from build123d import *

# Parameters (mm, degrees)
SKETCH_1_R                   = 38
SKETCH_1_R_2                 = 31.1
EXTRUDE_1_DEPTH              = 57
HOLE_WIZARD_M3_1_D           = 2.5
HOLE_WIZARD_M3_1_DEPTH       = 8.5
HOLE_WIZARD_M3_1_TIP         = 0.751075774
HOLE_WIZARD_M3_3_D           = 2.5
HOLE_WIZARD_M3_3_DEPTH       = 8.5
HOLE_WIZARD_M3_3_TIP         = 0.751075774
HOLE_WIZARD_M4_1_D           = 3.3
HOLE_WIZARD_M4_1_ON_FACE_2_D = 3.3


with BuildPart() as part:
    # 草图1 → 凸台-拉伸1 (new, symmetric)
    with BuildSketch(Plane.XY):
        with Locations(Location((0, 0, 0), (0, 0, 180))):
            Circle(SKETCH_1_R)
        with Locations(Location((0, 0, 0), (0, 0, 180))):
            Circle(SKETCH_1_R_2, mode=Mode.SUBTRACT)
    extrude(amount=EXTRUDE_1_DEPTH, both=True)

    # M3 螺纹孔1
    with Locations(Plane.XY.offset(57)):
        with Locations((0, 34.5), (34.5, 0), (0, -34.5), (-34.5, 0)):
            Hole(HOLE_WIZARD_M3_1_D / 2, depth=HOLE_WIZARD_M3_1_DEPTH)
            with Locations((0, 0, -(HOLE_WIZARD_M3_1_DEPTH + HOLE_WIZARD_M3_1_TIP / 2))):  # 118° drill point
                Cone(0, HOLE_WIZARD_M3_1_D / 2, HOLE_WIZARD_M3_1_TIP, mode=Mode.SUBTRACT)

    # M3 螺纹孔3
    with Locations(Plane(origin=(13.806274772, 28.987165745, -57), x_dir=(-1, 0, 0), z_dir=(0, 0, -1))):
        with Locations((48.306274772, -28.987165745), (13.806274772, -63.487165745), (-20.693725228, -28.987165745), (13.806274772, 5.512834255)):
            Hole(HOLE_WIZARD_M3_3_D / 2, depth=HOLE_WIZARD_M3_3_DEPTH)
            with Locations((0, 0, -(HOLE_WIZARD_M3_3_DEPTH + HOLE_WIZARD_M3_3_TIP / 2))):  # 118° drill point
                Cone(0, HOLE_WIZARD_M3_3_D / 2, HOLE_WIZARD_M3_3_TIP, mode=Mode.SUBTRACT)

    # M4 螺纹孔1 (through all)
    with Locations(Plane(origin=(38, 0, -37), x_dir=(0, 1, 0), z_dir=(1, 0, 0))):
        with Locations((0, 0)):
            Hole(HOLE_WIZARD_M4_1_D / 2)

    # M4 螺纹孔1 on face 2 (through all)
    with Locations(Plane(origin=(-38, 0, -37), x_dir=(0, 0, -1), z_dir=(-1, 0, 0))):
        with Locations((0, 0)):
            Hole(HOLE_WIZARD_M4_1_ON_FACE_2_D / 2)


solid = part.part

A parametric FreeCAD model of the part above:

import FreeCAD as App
import Part
import Sketcher

V = App.Vector

doc = App.newDocument("Part")
body = doc.addObject("PartDesign::Body", "Body")

sketch1 = body.newObject("Sketcher::SketchObject", "Sketch")
sketch1.AttachmentSupport = (doc.getObject("XY_Plane"), [""])
sketch1.MapMode = "FlatFace"
sketch1.addGeometry([
    Part.Circle(V(0, 0, 0), V(0, 0, 1), 38),
    Part.Circle(V(0, 0, 0), V(0, 0, 1), 31),
], False)
sketch1.addConstraint([
    Sketcher.Constraint("Coincident", 0, 3, -1, 1),
    Sketcher.Constraint("Coincident", 1, 3, -1, 1),
    Sketcher.Constraint("Diameter", 0, 76.0),
    Sketcher.Constraint("Diameter", 1, 62.2),
])
pad1 = body.newObject("PartDesign::Pad", "Pad")
pad1.Profile = sketch1
pad1.Length = 114
pad1.Midplane = True

sketch2 = body.newObject("Sketcher::SketchObject", "Sketch001")
sketch2.AttachmentSupport = (doc.getObject("XY_Plane"), [""])
sketch2.MapMode = "FlatFace"
sketch2.AttachmentOffset = App.Placement(V(0, 0, 57), App.Rotation())
sketch2.addGeometry([
    Part.Circle(V(0, 34.5, 0), V(0, 0, 1), 1.2),
    Part.Circle(V(34.5, 0, 0), V(0, 0, 1), 1.2),
    Part.Circle(V(0, -34.5, 0), V(0, 0, 1), 1.2),
    Part.Circle(V(-34.5, 0, 0), V(0, 0, 1), 1.2),
], False)
sketch2.addConstraint([
    Sketcher.Constraint("Equal", 0, 1),
    Sketcher.Constraint("Equal", 1, 2),
    Sketcher.Constraint("Equal", 2, 3),
    Sketcher.Constraint("Symmetric", 0, 3, 2, 3, -1, 1),
    Sketcher.Constraint("Symmetric", 1, 3, 3, 3, -1, 1),
    Sketcher.Constraint("PointOnObject", 0, 3, -2),
    Sketcher.Constraint("PointOnObject", 1, 3, -1),
    Sketcher.Constraint("Diameter", 0, 2.5),
    Sketcher.Constraint("DistanceY", 2, 3, 0, 3, 69.0),
    Sketcher.Constraint("DistanceX", 3, 3, 1, 3, 69.0),
])
doc.recompute()
hole = body.newObject("PartDesign::Hole", "Hole")
hole.Profile = sketch2
hole.ThreadType = "None"
hole.Diameter = 2.5
hole.DepthType = "Dimension"
hole.Depth = 8.5
hole.DrillPoint = "Angled"
hole.DrillPointAngle = 118

sketch3 = body.newObject("Sketcher::SketchObject", "Sketch002")
sketch3.AttachmentSupport = (doc.getObject("XY_Plane"), [""])
sketch3.MapMode = "FlatFace"
sketch3.AttachmentOffset = App.Placement(V(0, 0, -57), App.Rotation())
sketch3.addGeometry([
    Part.Circle(V(-34.5, 0, 0), V(0, 0, 1), 1.2),
    Part.Circle(V(0, -34.5, 0), V(0, 0, 1), 1.2),
    Part.Circle(V(34.5, 0, 0), V(0, 0, 1), 1.2),
    Part.Circle(V(0, 34.5, 0), V(0, 0, 1), 1.2),
], False)
sketch3.addConstraint([
    Sketcher.Constraint("Equal", 0, 1),
    Sketcher.Constraint("Equal", 1, 2),
    Sketcher.Constraint("Equal", 2, 3),
    Sketcher.Constraint("Symmetric", 0, 3, 2, 3, -1, 1),
    Sketcher.Constraint("Symmetric", 1, 3, 3, 3, -1, 1),
    Sketcher.Constraint("PointOnObject", 0, 3, -1),
    Sketcher.Constraint("PointOnObject", 1, 3, -2),
    Sketcher.Constraint("Diameter", 0, 2.5),
    Sketcher.Constraint("DistanceX", 0, 3, 2, 3, 69.0),
    Sketcher.Constraint("DistanceY", 1, 3, 3, 3, 69.0),
])
doc.recompute()
hole2 = body.newObject("PartDesign::Hole", "Hole001")
hole2.Profile = sketch3
hole2.ThreadType = "None"
hole2.Diameter = 2.5
hole2.DepthType = "Dimension"
hole2.Depth = 8.5
hole2.DrillPoint = "Angled"
hole2.DrillPointAngle = 118
hole2.Reversed = True

sketch4 = body.newObject("Sketcher::SketchObject", "Sketch003")
sketch4.AttachmentSupport = (doc.getObject("YZ_Plane"), [""])
sketch4.MapMode = "FlatFace"
sketch4.AttachmentOffset = App.Placement(V(0, 0, 38), App.Rotation())
sketch4.addGeometry(Part.Circle(V(0, -37, 0), V(0, 0, 1), 1.6), False)
sketch4.addConstraint([
    Sketcher.Constraint("PointOnObject", 0, 3, -2),
    Sketcher.Constraint("Diameter", 0, 3.3),
    Sketcher.Constraint("DistanceY", 0, 3, -1, 1, 37.0),
])
doc.recompute()
hole3 = body.newObject("PartDesign::Hole", "Hole002")
hole3.Profile = sketch4
hole3.ThreadType = "None"
hole3.Diameter = 3.3
hole3.DepthType = "ThroughAll"

sketch5 = body.newObject("Sketcher::SketchObject", "Sketch004")
sketch5.AttachmentSupport = (doc.getObject("YZ_Plane"), [""])
sketch5.MapMode = "FlatFace"
sketch5.AttachmentOffset = App.Placement(V(0, 0, -38), App.Rotation())
sketch5.addGeometry(Part.Circle(V(0, -37, 0), V(0, 0, 1), 1.6), False)
sketch5.addConstraint([
    Sketcher.Constraint("PointOnObject", 0, 3, -2),
    Sketcher.Constraint("Diameter", 0, 3.3),
    Sketcher.Constraint("DistanceY", 0, 3, -1, 1, 37.0),
])
doc.recompute()
hole4 = body.newObject("PartDesign::Hole", "Hole003")
hole4.Profile = sketch5
hole4.ThreadType = "None"
hole4.Diameter = 3.3
hole4.DepthType = "ThroughAll"
hole4.Reversed = True

doc.recompute()
